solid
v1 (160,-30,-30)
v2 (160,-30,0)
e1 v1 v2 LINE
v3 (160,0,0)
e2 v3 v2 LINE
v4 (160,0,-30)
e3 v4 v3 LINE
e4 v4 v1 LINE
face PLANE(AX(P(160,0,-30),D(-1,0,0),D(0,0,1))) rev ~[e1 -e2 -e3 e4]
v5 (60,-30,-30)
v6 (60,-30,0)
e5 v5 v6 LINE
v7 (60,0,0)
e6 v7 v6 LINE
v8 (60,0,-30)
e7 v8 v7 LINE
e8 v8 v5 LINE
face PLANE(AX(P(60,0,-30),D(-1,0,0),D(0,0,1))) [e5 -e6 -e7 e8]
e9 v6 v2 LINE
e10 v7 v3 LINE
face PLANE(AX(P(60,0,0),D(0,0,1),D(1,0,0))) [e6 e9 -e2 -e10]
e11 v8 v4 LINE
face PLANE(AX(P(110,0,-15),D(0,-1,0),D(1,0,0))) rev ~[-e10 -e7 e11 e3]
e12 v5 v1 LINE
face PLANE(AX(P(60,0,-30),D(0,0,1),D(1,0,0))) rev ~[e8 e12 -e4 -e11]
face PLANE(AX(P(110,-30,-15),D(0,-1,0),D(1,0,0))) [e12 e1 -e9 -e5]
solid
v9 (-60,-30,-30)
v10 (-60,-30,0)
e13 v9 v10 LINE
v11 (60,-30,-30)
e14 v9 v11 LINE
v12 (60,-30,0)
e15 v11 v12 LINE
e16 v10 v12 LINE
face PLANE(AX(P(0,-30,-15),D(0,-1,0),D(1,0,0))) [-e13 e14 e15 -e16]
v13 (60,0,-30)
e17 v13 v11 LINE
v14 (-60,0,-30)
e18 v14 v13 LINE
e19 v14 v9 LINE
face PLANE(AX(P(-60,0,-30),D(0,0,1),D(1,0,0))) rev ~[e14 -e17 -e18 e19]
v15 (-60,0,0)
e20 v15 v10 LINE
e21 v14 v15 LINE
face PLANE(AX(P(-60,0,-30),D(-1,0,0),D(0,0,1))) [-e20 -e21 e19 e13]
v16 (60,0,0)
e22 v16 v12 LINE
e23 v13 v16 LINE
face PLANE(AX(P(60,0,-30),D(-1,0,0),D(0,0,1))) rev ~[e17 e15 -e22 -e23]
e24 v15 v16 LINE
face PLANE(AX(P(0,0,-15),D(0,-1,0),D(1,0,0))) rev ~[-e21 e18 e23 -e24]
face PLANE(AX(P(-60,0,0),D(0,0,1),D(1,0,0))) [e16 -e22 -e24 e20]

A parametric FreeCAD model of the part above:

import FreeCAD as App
import Part
import Sketcher
from FreeCAD import Vector

doc = App.newDocument("Part")
body = doc.addObject("PartDesign::Body", "Body")

sketch1 = body.newObject("Sketcher::SketchObject", "Sketch")
sketch1.AttachmentSupport = (doc.getObject("XZ_Plane"), [""])
sketch1.MapMode = "FlatFace"
sketch1.addGeometry([
    Part.LineSegment(Vector(-60, 0, 0), Vector(-60, -30, 0)),
    Part.LineSegment(Vector(-60, -30, 0), Vector(60, -30, 0)),
    Part.LineSegment(Vector(60, -30, 0), Vector(60, 0, 0)),
    Part.LineSegment(Vector(60, 0, 0), Vector(-60, 0, 0)),
], False)
sketch1.addConstraint([
    Sketcher.Constraint("Coincident", 0, 2, 1, 1),
    Sketcher.Constraint("Coincident", 1, 2, 2, 1),
    Sketcher.Constraint("Coincident", 2, 2, 3, 1),
    Sketcher.Constraint("Coincident", 3, 2, 0, 1),
    Sketcher.Constraint("Vertical", 0),
    Sketcher.Constraint("Horizontal", 1),
    Sketcher.Constraint("Vertical", 2),
    Sketcher.Constraint("Horizontal", 3),
    Sketcher.Constraint("Symmetric", 2, 2, 3, 2, -1, 1),
    Sketcher.Constraint("DistanceX", 1, 1, 1, 2, 120.0),
    Sketcher.Constraint("DistanceY", 0, 2, 0, 1, 30.0),
])
pad1 = body.newObject("PartDesign::Pad", "Pad")
pad1.Profile = sketch1
pad1.Length = 30
body2 = doc.addObject("PartDesign::Body", "Body001")

sketch2 = body2.newObject("Sketcher::SketchObject", "Sketch001")
sketch2.AttachmentSupport = (doc.getObject("XZ_Plane001"), [""])
sketch2.MapMode = "FlatFace"
sketch2.addGeometry([
    Part.LineSegment(Vector(60, 0, 0), Vector(60, -30, 0)),
    Part.LineSegment(Vector(60, -30, 0), Vector(160, -30, 0)),
    Part.LineSegment(Vector(160, -30, 0), Vector(160, 0, 0)),
    Part.LineSegment(Vector(160, 0, 0), Vector(60, 0, 0)),
], False)
sketch2.addConstraint([
    Sketcher.Constraint("Coincident", 0, 2, 1, 1),
    Sketcher.Constraint("Coincident", 1, 2, 2, 1),
    Sketcher.Constraint("Coincident", 2, 2, 3, 1),
    Sketcher.Constraint("Coincident", 3, 2, 0, 1),
    Sketcher.Constraint("Vertical", 0),
    Sketcher.Constraint("Horizontal", 1),
    Sketcher.Constraint("Vertical", 2),
    Sketcher.Constraint("Horizontal", 3),
    Sketcher.Constraint("PointOnObject", 2, 2, -1),
    Sketcher.Constraint("DistanceX", 1, 1, 1, 2, 100.0),
    Sketcher.Constraint("DistanceY", 0, 2, 0, 1, 30.0),
    Sketcher.Constraint("DistanceX", -1, 1, 0, 2, 60.0),
])
pad2 = body2.newObject("PartDesign::Pad", "Pad001")
pad2.Profile = sketch2
pad2.Length = 30

doc.recompute()
